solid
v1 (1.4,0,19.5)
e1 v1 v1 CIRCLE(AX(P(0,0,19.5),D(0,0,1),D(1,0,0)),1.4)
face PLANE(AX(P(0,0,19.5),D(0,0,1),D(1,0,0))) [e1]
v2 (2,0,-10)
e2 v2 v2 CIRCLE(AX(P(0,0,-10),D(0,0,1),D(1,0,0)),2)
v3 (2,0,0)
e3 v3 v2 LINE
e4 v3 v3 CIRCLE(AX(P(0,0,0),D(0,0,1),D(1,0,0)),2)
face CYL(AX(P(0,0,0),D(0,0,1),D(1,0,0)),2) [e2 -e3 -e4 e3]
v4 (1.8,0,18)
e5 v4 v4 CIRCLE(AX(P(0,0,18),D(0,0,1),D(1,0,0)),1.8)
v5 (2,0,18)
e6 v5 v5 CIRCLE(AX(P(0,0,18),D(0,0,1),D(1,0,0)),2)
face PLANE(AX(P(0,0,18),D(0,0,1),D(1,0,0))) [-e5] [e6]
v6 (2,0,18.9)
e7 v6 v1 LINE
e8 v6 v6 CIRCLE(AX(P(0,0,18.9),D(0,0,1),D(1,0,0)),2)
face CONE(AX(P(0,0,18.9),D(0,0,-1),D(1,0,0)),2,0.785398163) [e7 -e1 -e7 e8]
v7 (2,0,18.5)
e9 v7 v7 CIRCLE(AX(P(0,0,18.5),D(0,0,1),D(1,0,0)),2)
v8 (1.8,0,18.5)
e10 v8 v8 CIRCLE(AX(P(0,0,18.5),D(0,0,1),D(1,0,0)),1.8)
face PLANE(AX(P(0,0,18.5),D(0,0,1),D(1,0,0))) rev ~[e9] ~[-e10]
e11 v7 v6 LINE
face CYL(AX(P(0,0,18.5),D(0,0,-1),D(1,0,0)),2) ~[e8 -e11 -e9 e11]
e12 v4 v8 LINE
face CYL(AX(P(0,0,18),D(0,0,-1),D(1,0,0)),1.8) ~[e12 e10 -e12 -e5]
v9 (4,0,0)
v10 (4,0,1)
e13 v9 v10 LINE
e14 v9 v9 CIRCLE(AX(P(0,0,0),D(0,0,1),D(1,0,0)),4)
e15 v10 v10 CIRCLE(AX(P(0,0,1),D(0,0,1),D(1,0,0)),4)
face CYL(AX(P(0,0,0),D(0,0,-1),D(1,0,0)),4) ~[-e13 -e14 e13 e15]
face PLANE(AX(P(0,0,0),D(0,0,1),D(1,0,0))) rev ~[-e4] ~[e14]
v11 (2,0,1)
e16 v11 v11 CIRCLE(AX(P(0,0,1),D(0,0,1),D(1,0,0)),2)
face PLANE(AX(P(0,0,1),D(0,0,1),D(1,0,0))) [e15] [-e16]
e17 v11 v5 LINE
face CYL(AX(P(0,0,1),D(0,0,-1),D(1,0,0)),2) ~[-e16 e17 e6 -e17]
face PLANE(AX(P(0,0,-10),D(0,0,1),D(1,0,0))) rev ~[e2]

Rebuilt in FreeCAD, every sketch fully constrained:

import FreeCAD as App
import Part
import Sketcher

V = App.Vector


def edges_at(feature, points):
    """Names of the edges that pass closest to the given points."""
    edges = feature.Shape.Edges
    near = lambda p: min(range(len(edges)), key=lambda i: edges[i].distToShape(Part.Vertex(*p))[0])
    return sorted({f"Edge{near(p) + 1}" for p in points})

doc = App.newDocument("Part")
body = doc.addObject("PartDesign::Body", "Body")

sketch1 = body.newObject("Sketcher::SketchObject", "Sketch")
sketch1.AttachmentSupport = (doc.getObject("XY_Plane"), [""])
sketch1.MapMode = "FlatFace"
sketch1.addGeometry(Part.Circle(V(0, 0, 0), V(0, 0, 1), 2), False)
sketch1.addConstraint(Sketcher.Constraint("Coincident", 0, 3, -1, 1))
sketch1.addConstraint(Sketcher.Constraint("Diameter", 0, 4.0))
pad1 = body.newObject("PartDesign::Pad", "Pad")
pad1.Profile = sketch1
pad1.Length = 10
pad1.Reversed = True

sketch2 = body.newObject("Sketcher::SketchObject", "Sketch001")
sketch2.AttachmentSupport = (doc.getObject("XY_Plane"), [""])
sketch2.MapMode = "FlatFace"
sketch2.addGeometry(Part.Circle(V(0, 0, 0), V(0, 0, 1), 4), False)
sketch2.addConstraint(Sketcher.Constraint("Coincident", 0, 3, -1, 1))
sketch2.addConstraint(Sketcher.Constraint("Diameter", 0, 8.0))
pad2 = body.newObject("PartDesign::Pad", "Pad001")
pad2.Profile = sketch2
pad2.Length = 1

sketch3 = body.newObject("Sketcher::SketchObject", "Sketch002")
sketch3.AttachmentSupport = (doc.getObject("XY_Plane"), [""])
sketch3.MapMode = "FlatFace"
sketch3.AttachmentOffset = App.Placement(V(0, 0, 1), App.Rotation())
sketch3.addGeometry(Part.Circle(V(0, 0, 0), V(0, 0, 1), 2), False)
sketch3.addConstraint(Sketcher.Constraint("Coincident", 0, 3, -1, 1))
sketch3.addConstraint(Sketcher.Constraint("Diameter", 0, 4.0))
pad3 = body.newObject("PartDesign::Pad", "Pad002")
pad3.Profile = sketch3
pad3.Length = 17

sketch4 = body.newObject("Sketcher::SketchObject", "Sketch003")
sketch4.AttachmentSupport = (doc.getObject("XY_Plane"), [""])
sketch4.MapMode = "FlatFace"
sketch4.AttachmentOffset = App.Placement(V(0, 0, 18), App.Rotation())
sketch4.addGeometry(Part.Circle(V(0, 0, 0), V(0, 0, 1), 1.8), False)
sketch4.addConstraint(Sketcher.Constraint("Coincident", 0, 3, -1, 1))
sketch4.addConstraint(Sketcher.Constraint("Diameter", 0, 3.6))
pad4 = body.newObject("PartDesign::Pad", "Pad003")
pad4.Profile = sketch4
pad4.Length = 0.5

sketch5 = body.newObject("Sketcher::SketchObject", "Sketch004")
sketch5.AttachmentSupport = (doc.getObject("XY_Plane"), [""])
sketch5.MapMode = "FlatFace"
sketch5.AttachmentOffset = App.Placement(V(0, 0, 18.5), App.Rotation())
sketch5.addGeometry(Part.Circle(V(0, 0, 0), V(0, 0, 1), 2), False)
sketch5.addConstraint(Sketcher.Constraint("Coincident", 0, 3, -1, 1))
sketch5.addConstraint(Sketcher.Constraint("Diameter", 0, 4.0))
pad5 = body.newObject("PartDesign::Pad", "Pad004")
pad5.Profile = sketch5
pad5.Length = 1
doc.recompute()

chamfer = body.newObject("PartDesign::Chamfer", "Chamfer")
chamfer.Base = (pad5, edges_at(pad5, [(-2, 0, 19.5)]))
chamfer.Size = 0.6

doc.recompute()
